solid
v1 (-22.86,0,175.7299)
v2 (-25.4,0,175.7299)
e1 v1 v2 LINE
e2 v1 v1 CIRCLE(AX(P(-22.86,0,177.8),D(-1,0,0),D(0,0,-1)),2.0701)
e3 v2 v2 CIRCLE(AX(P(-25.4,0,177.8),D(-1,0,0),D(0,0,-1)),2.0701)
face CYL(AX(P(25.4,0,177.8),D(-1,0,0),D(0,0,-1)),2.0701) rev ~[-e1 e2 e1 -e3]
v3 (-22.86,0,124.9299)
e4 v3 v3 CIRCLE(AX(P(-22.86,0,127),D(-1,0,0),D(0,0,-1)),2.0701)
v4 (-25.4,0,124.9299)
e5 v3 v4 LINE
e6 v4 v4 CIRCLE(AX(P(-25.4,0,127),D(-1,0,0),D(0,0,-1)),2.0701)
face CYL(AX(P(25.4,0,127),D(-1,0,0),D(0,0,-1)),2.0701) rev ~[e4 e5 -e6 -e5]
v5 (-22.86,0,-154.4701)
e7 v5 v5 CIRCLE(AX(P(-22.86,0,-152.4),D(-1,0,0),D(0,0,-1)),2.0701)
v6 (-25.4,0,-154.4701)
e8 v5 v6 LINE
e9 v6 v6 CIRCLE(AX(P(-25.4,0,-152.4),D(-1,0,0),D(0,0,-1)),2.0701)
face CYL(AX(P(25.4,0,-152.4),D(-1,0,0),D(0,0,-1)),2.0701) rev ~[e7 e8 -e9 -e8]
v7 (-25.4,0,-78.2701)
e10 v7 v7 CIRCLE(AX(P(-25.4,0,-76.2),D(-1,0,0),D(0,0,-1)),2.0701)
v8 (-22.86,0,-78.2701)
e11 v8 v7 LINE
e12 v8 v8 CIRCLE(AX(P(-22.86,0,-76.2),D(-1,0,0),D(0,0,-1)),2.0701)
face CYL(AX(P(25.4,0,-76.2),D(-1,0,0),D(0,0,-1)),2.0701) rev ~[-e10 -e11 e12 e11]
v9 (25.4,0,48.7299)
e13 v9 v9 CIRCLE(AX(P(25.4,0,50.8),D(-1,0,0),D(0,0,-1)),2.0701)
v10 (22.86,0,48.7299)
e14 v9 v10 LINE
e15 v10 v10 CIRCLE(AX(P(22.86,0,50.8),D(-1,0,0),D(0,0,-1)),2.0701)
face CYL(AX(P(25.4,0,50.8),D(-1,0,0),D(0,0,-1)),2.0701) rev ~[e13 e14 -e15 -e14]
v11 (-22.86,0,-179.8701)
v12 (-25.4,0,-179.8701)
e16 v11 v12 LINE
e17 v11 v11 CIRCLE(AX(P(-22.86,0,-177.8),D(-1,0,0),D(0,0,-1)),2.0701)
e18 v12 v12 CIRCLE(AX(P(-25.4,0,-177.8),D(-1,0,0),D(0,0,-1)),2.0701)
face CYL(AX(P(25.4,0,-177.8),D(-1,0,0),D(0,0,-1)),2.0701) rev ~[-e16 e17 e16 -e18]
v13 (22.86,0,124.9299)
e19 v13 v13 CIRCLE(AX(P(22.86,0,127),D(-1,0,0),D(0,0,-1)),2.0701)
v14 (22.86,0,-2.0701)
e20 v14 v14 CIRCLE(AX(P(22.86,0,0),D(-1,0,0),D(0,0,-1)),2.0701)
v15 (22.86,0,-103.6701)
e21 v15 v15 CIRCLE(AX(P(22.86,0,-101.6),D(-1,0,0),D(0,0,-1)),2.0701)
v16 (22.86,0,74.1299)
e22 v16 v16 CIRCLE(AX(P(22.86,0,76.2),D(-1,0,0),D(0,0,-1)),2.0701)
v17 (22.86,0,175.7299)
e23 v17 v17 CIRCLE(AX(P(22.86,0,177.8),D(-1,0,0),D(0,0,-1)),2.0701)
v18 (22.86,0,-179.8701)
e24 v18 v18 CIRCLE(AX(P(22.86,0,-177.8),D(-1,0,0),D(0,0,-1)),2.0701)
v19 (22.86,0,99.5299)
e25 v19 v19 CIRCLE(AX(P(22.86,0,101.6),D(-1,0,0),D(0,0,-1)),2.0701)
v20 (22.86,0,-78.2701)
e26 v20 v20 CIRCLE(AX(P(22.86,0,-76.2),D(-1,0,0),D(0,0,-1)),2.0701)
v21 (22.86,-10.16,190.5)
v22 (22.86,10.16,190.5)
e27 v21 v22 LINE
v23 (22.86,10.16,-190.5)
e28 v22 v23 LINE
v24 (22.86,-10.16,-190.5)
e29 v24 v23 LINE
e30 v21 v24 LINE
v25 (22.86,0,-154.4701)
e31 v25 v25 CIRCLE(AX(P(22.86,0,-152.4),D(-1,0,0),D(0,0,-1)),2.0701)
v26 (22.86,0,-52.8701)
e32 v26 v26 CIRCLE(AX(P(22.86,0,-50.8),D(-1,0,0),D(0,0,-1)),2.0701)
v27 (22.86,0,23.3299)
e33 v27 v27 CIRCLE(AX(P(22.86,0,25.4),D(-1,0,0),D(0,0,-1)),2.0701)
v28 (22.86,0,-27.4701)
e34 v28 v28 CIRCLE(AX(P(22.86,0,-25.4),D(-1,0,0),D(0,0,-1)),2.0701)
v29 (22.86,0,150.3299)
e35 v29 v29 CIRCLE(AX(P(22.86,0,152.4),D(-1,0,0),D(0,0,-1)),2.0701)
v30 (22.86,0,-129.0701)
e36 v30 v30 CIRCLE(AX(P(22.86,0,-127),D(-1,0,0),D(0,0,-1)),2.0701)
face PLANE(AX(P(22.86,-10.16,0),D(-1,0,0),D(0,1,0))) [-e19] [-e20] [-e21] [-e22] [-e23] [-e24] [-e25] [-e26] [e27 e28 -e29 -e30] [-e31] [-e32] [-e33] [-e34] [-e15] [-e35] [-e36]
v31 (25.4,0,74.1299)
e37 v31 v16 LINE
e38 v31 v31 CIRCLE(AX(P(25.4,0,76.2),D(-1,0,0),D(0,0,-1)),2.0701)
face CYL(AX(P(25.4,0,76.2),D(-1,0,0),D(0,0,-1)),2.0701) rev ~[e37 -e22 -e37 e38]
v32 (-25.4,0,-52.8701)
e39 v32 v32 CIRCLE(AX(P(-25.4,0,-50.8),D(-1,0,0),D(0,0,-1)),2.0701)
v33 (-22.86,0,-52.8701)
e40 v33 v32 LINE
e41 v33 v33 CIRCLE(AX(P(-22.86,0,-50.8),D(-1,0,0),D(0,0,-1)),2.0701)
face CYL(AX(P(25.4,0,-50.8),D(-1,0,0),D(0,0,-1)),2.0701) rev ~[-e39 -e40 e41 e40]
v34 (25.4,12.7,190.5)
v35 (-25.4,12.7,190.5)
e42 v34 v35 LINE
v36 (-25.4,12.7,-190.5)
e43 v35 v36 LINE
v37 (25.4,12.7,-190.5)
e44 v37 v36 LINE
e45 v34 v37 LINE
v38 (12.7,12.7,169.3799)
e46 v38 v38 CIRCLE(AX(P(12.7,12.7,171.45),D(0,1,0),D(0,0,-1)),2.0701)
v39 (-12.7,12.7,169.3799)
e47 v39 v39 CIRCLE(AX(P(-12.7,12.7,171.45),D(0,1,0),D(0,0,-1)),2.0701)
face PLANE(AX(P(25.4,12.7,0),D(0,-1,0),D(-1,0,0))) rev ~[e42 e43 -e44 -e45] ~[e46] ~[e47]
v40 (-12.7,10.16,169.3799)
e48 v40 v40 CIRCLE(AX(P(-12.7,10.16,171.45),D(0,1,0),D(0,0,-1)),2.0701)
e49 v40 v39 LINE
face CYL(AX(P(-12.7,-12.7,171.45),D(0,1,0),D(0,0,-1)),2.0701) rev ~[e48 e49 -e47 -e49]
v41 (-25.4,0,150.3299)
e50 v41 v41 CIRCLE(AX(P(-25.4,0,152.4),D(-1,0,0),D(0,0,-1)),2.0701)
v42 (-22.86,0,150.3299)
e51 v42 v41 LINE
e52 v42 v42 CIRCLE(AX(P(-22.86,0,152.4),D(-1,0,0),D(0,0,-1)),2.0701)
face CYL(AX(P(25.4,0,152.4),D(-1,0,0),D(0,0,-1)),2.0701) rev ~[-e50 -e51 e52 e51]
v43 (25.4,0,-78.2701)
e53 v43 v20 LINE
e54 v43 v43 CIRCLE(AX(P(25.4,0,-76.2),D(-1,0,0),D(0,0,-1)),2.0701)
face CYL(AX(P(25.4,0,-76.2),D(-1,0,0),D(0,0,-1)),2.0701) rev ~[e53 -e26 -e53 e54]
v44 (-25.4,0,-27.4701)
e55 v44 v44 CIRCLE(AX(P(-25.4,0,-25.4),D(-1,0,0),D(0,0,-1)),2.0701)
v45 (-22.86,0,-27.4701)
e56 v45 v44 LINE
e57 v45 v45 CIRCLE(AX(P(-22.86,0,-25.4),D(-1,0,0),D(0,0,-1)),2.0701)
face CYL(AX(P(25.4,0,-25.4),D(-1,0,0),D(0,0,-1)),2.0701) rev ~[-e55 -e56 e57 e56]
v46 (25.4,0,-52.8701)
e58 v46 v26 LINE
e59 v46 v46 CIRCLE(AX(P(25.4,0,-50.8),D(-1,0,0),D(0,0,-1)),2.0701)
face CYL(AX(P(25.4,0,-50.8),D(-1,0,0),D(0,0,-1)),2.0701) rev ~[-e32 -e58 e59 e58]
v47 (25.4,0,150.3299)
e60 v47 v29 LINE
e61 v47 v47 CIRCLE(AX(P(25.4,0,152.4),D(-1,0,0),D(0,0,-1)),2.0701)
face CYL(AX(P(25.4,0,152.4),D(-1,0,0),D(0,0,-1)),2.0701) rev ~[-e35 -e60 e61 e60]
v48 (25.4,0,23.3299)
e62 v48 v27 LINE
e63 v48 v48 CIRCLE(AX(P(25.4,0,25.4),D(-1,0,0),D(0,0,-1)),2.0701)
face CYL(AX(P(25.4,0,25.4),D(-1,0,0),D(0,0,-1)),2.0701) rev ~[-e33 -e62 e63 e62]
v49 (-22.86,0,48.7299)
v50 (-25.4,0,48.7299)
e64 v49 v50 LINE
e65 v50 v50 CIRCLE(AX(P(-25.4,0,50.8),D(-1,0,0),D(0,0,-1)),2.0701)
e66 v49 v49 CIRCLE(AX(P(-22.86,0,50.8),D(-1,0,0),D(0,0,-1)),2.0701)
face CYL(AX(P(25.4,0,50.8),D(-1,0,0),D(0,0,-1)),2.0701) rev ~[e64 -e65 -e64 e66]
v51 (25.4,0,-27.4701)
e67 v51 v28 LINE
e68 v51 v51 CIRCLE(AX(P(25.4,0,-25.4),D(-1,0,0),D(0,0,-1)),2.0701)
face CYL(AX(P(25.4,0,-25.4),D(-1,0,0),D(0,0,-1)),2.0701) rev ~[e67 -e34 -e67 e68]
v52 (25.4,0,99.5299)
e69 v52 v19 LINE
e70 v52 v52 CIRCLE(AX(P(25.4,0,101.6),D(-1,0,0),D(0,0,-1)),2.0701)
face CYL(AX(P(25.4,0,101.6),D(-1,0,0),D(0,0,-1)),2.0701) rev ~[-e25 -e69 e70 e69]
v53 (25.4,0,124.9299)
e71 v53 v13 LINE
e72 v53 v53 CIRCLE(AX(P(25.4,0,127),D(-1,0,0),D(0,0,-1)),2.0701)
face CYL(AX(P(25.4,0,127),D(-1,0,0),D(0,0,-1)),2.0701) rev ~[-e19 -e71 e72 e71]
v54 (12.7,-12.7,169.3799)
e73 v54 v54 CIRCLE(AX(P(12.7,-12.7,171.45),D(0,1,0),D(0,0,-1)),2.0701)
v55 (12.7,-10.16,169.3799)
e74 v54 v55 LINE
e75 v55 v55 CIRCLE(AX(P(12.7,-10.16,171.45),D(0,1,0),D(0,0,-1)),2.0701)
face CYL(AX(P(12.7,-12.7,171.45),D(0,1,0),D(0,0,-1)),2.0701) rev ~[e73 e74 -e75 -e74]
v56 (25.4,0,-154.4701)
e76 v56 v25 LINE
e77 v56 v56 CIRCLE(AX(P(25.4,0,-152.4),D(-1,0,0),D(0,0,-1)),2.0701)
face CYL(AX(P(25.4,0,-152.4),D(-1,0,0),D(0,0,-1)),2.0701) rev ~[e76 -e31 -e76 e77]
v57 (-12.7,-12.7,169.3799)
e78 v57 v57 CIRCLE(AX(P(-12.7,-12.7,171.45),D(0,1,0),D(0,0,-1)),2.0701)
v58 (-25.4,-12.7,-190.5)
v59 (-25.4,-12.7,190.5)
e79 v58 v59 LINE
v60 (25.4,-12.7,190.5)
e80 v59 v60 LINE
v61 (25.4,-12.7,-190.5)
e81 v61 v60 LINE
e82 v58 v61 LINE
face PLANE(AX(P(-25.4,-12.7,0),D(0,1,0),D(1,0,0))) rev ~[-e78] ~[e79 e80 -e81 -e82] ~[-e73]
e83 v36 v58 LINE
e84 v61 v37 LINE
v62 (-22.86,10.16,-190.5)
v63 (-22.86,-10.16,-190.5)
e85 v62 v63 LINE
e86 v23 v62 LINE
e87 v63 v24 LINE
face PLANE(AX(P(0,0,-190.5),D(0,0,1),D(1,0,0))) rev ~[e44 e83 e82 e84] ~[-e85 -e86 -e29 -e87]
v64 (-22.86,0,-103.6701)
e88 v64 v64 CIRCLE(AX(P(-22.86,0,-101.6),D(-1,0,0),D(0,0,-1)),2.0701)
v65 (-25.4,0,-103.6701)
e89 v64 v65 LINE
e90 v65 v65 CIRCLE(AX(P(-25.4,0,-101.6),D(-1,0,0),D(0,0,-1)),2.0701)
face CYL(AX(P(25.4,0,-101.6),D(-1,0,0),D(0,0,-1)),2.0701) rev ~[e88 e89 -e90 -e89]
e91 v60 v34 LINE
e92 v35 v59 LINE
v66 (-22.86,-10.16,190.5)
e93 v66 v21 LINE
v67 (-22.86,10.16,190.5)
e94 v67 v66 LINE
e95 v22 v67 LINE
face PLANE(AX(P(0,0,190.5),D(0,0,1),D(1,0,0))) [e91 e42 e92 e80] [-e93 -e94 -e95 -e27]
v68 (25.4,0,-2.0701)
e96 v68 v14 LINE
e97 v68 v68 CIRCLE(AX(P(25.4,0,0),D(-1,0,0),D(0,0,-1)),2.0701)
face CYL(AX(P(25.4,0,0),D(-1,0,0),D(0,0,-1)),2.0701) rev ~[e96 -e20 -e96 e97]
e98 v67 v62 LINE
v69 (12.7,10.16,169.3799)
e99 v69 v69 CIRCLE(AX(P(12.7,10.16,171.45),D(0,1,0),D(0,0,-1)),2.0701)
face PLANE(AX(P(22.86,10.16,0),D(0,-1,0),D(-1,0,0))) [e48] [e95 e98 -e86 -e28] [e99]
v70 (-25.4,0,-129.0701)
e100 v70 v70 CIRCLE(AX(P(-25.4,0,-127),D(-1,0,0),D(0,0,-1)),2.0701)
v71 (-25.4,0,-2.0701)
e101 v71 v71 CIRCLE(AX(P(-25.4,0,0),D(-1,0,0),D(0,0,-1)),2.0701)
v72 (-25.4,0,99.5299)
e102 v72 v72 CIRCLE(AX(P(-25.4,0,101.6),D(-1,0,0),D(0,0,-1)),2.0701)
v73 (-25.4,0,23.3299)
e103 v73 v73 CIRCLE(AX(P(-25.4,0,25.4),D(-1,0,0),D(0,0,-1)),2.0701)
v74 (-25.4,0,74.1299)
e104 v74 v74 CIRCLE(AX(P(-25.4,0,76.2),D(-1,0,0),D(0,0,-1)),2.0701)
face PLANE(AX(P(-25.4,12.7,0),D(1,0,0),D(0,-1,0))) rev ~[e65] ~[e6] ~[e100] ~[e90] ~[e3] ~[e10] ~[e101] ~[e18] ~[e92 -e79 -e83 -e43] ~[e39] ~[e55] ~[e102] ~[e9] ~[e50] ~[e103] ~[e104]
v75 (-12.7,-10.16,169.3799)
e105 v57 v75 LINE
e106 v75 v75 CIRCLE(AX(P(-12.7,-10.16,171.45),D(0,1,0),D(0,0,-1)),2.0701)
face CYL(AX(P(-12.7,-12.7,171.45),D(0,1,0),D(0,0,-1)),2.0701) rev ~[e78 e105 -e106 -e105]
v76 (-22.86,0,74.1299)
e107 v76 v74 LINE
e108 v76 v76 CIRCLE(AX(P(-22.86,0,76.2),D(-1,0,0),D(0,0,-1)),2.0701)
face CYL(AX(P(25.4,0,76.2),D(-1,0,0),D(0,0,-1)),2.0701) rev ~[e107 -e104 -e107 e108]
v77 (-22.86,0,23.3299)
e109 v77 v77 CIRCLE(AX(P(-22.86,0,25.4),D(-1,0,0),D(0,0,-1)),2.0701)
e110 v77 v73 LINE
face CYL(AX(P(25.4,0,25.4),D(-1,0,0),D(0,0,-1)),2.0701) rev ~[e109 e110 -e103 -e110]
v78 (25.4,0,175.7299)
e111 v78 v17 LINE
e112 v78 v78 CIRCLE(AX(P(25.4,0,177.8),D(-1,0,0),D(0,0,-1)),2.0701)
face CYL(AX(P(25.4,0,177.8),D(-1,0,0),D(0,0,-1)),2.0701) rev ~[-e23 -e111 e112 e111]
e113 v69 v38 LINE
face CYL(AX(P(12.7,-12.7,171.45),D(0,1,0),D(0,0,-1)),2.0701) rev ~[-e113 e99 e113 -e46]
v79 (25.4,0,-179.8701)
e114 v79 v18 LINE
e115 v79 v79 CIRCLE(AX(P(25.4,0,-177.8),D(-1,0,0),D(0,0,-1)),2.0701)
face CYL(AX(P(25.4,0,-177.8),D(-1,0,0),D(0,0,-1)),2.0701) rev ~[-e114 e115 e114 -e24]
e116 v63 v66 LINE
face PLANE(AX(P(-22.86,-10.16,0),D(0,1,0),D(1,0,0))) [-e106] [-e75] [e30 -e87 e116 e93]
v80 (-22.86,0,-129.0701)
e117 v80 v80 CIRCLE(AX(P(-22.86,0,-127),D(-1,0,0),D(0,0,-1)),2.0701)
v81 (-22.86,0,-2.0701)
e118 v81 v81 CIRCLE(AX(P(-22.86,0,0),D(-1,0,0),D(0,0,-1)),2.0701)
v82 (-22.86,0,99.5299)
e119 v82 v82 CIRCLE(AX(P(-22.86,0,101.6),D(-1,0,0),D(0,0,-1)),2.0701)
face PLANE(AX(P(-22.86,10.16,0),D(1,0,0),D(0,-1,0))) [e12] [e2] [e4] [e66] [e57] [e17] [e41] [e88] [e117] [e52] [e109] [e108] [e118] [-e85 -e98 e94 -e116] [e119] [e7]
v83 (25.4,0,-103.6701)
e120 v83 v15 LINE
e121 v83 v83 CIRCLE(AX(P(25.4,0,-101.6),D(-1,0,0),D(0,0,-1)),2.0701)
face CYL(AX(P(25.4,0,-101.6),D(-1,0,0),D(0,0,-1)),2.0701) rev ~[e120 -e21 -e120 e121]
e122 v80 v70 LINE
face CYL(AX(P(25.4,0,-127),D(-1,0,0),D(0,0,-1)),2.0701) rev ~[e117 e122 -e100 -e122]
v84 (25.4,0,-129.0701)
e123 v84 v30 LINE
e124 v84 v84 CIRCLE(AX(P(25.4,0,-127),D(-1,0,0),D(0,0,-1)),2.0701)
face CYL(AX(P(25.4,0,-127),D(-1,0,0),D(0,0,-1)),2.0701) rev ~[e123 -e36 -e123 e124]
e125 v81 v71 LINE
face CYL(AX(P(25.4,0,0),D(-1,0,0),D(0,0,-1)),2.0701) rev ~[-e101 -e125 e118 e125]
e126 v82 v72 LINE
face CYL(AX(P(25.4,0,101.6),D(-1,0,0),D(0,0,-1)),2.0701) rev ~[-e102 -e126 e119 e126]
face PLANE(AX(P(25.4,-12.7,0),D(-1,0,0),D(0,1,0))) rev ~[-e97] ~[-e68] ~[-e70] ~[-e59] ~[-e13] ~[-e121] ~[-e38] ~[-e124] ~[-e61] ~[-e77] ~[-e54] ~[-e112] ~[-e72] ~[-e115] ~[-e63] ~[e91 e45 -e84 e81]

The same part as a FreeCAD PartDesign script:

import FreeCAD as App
import Part
import Sketcher
from FreeCAD import Vector
Q = App.Units.Quantity

doc = App.newDocument("Part")
params = doc.addObject("Spreadsheet::Sheet", "Params")
for row, (alias, value) in enumerate([
    ("sketch1_width", "2 in"),
    ("sketch1_height", "1 in"),
    ("sketch1_width2", "1.8 in"),
    ("sketch1_height2", "0.8 in"),
    ("pad1_length", "15 in"),
    ("sketch2_diameter", "0.163 in"),
    ("hole_diameter", "0.163 in"),
    ("linearpattern_pitch", "1 in"),
    ("sketch3_diameter", "0.163 in"),
    ("hole2_diameter", "0.163 in"),
], start=1):
    params.set(f"A{row}", alias)
    params.set(f"B{row}", "=" + value)
    params.setAlias(f"B{row}", alias)

body = doc.addObject("PartDesign::Body", "Body")

sketch1 = body.newObject("Sketcher::SketchObject", "Sketch")
sketch1.AttachmentSupport = (doc.getObject("XY_Plane"), [""])
sketch1.MapMode = "FlatFace"
sketch1.addGeometry([
    Part.LineSegment(Vector(-25, 13, 0), Vector(-25, -13, 0)),
    Part.LineSegment(Vector(-25, -13, 0), Vector(25, -13, 0)),
    Part.LineSegment(Vector(25, -13, 0), Vector(25, 13, 0)),
    Part.LineSegment(Vector(25, 13, 0), Vector(-25, 13, 0)),
    Part.LineSegment(Vector(23, -10, 0), Vector(-23, -10, 0)),
    Part.LineSegment(Vector(-23, -10, 0), Vector(-23, 10, 0)),
    Part.LineSegment(Vector(-23, 10, 0), Vector(23, 10, 0)),
    Part.LineSegment(Vector(23, 10, 0), Vector(23, -10, 0)),
], False)
sketch1.addConstraint([
    Sketcher.Constraint("Coincident", 0, 2, 1, 1),
    Sketcher.Constraint("Coincident", 1, 2, 2, 1),
    Sketcher.Constraint("Coincident", 2, 2, 3, 1),
    Sketcher.Constraint("Coincident", 3, 2, 0, 1),
    Sketcher.Constraint("Coincident", 4, 2, 5, 1),
    Sketcher.Constraint("Coincident", 5, 2, 6, 1),
    Sketcher.Constraint("Coincident", 6, 2, 7, 1),
    Sketcher.Constraint("Coincident", 7, 2, 4, 1),
    Sketcher.Constraint("Vertical", 0),
    Sketcher.Constraint("Horizontal", 1),
    Sketcher.Constraint("Vertical", 2),
    Sketcher.Constraint("Horizontal", 3),
    Sketcher.Constraint("Horizontal", 4),
    Sketcher.Constraint("Vertical", 5),
    Sketcher.Constraint("Horizontal", 6),
    Sketcher.Constraint("Vertical", 7),
    Sketcher.Constraint("Symmetric", 0, 2, 2, 2, -1, 1),
    Sketcher.Constraint("Symmetric", 4, 2, 6, 2, -1, 1),
    Sketcher.Constraint("DistanceX", 1, 1, 1, 2, Q("2 in")),
    Sketcher.Constraint("DistanceY", 0, 2, 0, 1, Q("1 in")),
    Sketcher.Constraint("DistanceX", 4, 2, 4, 1, Q("1.8 in")),
    Sketcher.Constraint("DistanceY", 5, 1, 5, 2, Q("0.8 in")),
])
sketch1.setExpression("Constraints[18]", "Params.sketch1_width")
sketch1.setExpression("Constraints[19]", "Params.sketch1_height")
sketch1.setExpression("Constraints[20]", "Params.sketch1_width2")
sketch1.setExpression("Constraints[21]", "Params.sketch1_height2")
pad1 = body.newObject("PartDesign::Pad", "Pad")
pad1.Profile = sketch1
pad1.setExpression("Length", "Params.pad1_length")
pad1.Midplane = True

sketch2 = body.newObject("Sketcher::SketchObject", "Sketch001")
sketch2.AttachmentSupport = (doc.getObject("YZ_Plane"), [""])
sketch2.MapMode = "FlatFace"
sketch2.AttachmentOffset = App.Placement(Vector(0, 0, 1 * 25.4), App.Rotation())
sketch2.addGeometry(Part.Circle(Vector(0, 177.8, 0), Vector(0, 0, 1), 2.1), False)
sketch2.addConstraint([
    Sketcher.Constraint("PointOnObject", 0, 3, -2),
    Sketcher.Constraint("Diameter", 0, Q("0.163 in")),
    Sketcher.Constraint("DistanceY", -1, 1, 0, 3, Q("7 in")),
])
sketch2.setExpression("Constraints[1]", "Params.sketch2_diameter")
doc.recompute()
hole = body.newObject("PartDesign::Hole", "Hole")
hole.Profile = sketch2
hole.ThreadType = "None"
hole.setExpression("Diameter", "Params.hole_diameter")
hole.DepthType = "ThroughAll"
doc.recompute()

linearpattern = body.newObject("PartDesign::LinearPattern", "LinearPattern")
linearpattern.Originals = [hole]
linearpattern.Direction = (doc.getObject("Z_Axis"), [""])
linearpattern.Mode = "offset"
linearpattern.setExpression("Offset", "Params.linearpattern_pitch")
linearpattern.Occurrences = 15
linearpattern.Reversed = True
body.Tip = linearpattern

sketch3 = body.newObject("Sketcher::SketchObject", "Sketch002")
sketch3.AttachmentSupport = (doc.getObject("XZ_Plane"), [""])
sketch3.MapMode = "FlatFace"
sketch3.AttachmentOffset = App.Placement(Vector(0, 0, 0.5 * 25.4), App.Rotation())
sketch3.addGeometry([
    Part.Circle(Vector(12.7, 171.4, 0), Vector(0, 0, 1), 2.1),
    Part.Circle(Vector(-12.7, 171.4, 0), Vector(0, 0, 1), 2.1),
], False)
sketch3.addConstraint([
    Sketcher.Constraint("Equal", 0, 1),
    Sketcher.Constraint("Symmetric", 0, 3, 1, 3, -2),
    Sketcher.Constraint("Diameter", 0, Q("0.163 in")),
    Sketcher.Constraint("DistanceX", 1, 3, 0, 3, Q("1 in")),
    Sketcher.Constraint("DistanceY", -1, 1, 0, 3, Q("6.75 in")),
])
sketch3.setExpression("Constraints[2]", "Params.sketch3_diameter")
doc.recompute()
hole2 = body.newObject("PartDesign::Hole", "Hole001")
hole2.Profile = sketch3
hole2.ThreadType = "None"
hole2.setExpression("Diameter", "Params.hole2_diameter")
hole2.DepthType = "ThroughAll"

doc.recompute()
